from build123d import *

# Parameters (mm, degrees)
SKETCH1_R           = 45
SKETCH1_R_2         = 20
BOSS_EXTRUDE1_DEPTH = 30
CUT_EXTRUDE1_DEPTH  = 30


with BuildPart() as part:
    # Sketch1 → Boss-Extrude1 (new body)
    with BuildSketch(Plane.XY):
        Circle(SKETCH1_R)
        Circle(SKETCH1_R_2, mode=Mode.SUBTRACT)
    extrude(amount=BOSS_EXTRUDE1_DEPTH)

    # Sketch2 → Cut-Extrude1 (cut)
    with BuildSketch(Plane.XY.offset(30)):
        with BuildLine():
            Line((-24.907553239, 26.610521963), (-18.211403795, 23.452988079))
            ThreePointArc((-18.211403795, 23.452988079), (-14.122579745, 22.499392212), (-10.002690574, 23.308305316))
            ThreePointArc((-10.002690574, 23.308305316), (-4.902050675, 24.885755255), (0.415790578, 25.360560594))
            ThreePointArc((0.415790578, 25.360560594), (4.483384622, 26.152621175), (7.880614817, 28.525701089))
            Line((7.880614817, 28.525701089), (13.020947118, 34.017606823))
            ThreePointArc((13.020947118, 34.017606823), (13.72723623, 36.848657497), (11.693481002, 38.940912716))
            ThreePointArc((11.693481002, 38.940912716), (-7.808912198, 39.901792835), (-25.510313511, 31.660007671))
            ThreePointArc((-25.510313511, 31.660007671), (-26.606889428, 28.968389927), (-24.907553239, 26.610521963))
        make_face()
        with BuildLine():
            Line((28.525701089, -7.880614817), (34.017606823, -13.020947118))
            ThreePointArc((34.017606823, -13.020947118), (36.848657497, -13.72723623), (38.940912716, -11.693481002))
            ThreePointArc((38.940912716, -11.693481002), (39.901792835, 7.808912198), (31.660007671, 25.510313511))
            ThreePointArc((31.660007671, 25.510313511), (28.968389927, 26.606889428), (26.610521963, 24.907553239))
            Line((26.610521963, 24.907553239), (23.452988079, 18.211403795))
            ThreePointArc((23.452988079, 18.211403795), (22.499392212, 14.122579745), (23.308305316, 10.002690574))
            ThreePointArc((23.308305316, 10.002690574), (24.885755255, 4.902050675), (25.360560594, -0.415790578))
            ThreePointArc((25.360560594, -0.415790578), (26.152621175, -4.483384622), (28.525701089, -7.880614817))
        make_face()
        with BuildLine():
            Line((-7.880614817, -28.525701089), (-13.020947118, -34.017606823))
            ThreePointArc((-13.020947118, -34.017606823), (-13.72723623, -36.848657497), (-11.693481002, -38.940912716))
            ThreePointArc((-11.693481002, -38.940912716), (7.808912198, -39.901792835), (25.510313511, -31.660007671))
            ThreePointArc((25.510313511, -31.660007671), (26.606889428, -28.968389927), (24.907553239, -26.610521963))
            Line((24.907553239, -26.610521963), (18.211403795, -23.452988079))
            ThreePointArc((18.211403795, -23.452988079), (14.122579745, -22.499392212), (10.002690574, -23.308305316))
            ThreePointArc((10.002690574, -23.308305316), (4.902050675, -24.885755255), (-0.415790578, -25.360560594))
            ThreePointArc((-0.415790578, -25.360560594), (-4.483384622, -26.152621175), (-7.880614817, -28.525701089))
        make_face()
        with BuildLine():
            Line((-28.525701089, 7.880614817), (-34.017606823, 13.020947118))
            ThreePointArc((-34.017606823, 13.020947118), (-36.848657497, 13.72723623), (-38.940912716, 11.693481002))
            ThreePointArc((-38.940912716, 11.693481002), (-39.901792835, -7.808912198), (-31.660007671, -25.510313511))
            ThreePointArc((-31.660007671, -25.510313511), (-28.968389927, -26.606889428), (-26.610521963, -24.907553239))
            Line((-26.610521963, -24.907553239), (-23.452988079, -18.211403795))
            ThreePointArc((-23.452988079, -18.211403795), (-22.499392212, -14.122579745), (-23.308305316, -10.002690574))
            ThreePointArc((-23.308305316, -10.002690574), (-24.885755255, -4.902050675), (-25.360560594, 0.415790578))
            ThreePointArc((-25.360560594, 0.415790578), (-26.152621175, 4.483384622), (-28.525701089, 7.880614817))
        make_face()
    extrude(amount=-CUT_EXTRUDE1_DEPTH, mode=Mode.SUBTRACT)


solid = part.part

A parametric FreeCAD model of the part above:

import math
import FreeCAD as App
import Part
import Sketcher
from FreeCAD import Vector

doc = App.newDocument("Part")
body = doc.addObject("PartDesign::Body", "Body")

sketch1 = body.newObject("Sketcher::SketchObject", "Sketch")
sketch1.AttachmentSupport = (doc.getObject("XY_Plane"), [""])
sketch1.MapMode = "FlatFace"
sketch1.addGeometry([
    Part.Circle(Vector(0, 0, 0), Vector(0, 0, 1), 45),
    Part.Circle(Vector(0, 0, 0), Vector(0, 0, 1), 20),
], False)
sketch1.addConstraint([
    Sketcher.Constraint("Coincident", 0, 3, -1, 1),
    Sketcher.Constraint("Coincident", 1, 3, -1, 1),
    Sketcher.Constraint("Diameter", 0, 90.0),
    Sketcher.Constraint("Diameter", 1, 40.0),
])
pad1 = body.newObject("PartDesign::Pad", "Pad")
pad1.Profile = sketch1
pad1.Length = 30

sketch2 = body.newObject("Sketcher::SketchObject", "Sketch001")
sketch2.AttachmentSupport = (doc.getObject("XY_Plane"), [""])
sketch2.MapMode = "FlatFace"
sketch2.AttachmentOffset = App.Placement(Vector(0, 0, 30), App.Rotation())
sketch2.addGeometry([
    Part.LineSegment(Vector(-24.907553, 26.610522, 0), Vector(-18.211404, 23.452988, 0)),
    Part.ArcOfCircle(Part.Circle(Vector(-13.946352, 32.497839, 0), Vector(0, 0, 1), 10), math.radians(-115.245974), math.radians(-66.773552)),
    Part.ArcOfCircle(Part.Circle(Vector(0, 0, 0), Vector(0, 0, 1), 25.363969), math.radians(89.06071), math.radians(113.226448)),
    Part.ArcOfCircle(Part.Circle(Vector(0.57972, 35.359217, 0), Vector(0, 0, 1), 10), math.radians(-90.93929), math.radians(-43.106106)),
    Part.LineSegment(Vector(7.880615, 28.525701, 0), Vector(13.020947, 34.017607, 0)),
    Part.ArcOfCircle(Part.Circle(Vector(10.830679, 36.067662, 0), Vector(0, 0, 1), 3), math.radians(-43.106106), math.radians(73.285629)),
    Part.ArcOfCircle(Part.Circle(Vector(0, 0, 0), Vector(0, 0, 1), 40.658728), math.radians(73.285629), math.radians(128.860418)),
    Part.ArcOfCircle(Part.Circle(Vector(-23.628038, 29.323977, 0), Vector(0, 0, 1), 3), math.radians(128.860418), math.radians(244.754026)),
    Part.LineSegment(Vector(28.525701, -7.880615, 0), Vector(34.017607, -13.020947, 0)),
    Part.ArcOfCircle(Part.Circle(Vector(36.067662, -10.830679, 0), Vector(0, 0, 1), 3), math.radians(-133.106106), math.radians(-16.714371)),
    Part.ArcOfCircle(Part.Circle(Vector(0, 0, 0), Vector(0, 0, 1), 40.658728), math.radians(-16.714371), math.radians(38.860418)),
    Part.ArcOfCircle(Part.Circle(Vector(29.323977, 23.628038, 0), Vector(0, 0, 1), 3), math.radians(38.860418), math.radians(154.754026)),
    Part.LineSegment(Vector(26.610522, 24.907553, 0), Vector(23.452988, 18.211404, 0)),
    Part.ArcOfCircle(Part.Circle(Vector(32.497839, 13.946352, 0), Vector(0, 0, 1), 10), math.radians(154.754026), math.radians(203.226448)),
    Part.ArcOfCircle(Part.Circle(Vector(0, 0, 0), Vector(0, 0, 1), 25.363969), math.radians(-0.93929), math.radians(23.226448)),
    Part.ArcOfCircle(Part.Circle(Vector(35.359217, -0.57972, 0), Vector(0, 0, 1), 10), math.radians(179.06071), math.radians(226.893894)),
    Part.LineSegment(Vector(-7.880615, -28.525701, 0), Vector(-13.020947, -34.017607, 0)),
    Part.ArcOfCircle(Part.Circle(Vector(-10.830679, -36.067662, 0), Vector(0, 0, 1), 3), math.radians(136.893894), math.radians(253.285629)),
    Part.ArcOfCircle(Part.Circle(Vector(0, 0, 0), Vector(0, 0, 1), 40.658728), math.radians(-106.714371), math.radians(-51.139582)),
    Part.ArcOfCircle(Part.Circle(Vector(23.628038, -29.323977, 0), Vector(0, 0, 1), 3), math.radians(-51.139582), math.radians(64.754026)),
    Part.LineSegment(Vector(24.907553, -26.610522, 0), Vector(18.211404, -23.452988, 0)),
    Part.ArcOfCircle(Part.Circle(Vector(13.946352, -32.497839, 0), Vector(0, 0, 1), 10), math.radians(64.754026), math.radians(113.226448)),
    Part.ArcOfCircle(Part.Circle(Vector(0, 0, 0), Vector(0, 0, 1), 25.363969), math.radians(-90.93929), math.radians(-66.773552)),
    Part.ArcOfCircle(Part.Circle(Vector(-0.57972, -35.359217, 0), Vector(0, 0, 1), 10), math.radians(89.06071), math.radians(136.893894)),
    Part.LineSegment(Vector(-28.525701, 7.880615, 0), Vector(-34.017607, 13.020947, 0)),
    Part.ArcOfCircle(Part.Circle(Vector(-36.067662, 10.830679, 0), Vector(0, 0, 1), 3), math.radians(46.893894), math.radians(163.285629)),
    Part.ArcOfCircle(Part.Circle(Vector(0, 0, 0), Vector(0, 0, 1), 40.658728), math.radians(163.285629), math.radians(218.860418)),
    Part.ArcOfCircle(Part.Circle(Vector(-29.323977, -23.628038, 0), Vector(0, 0, 1), 3), math.radians(-141.139582), math.radians(-25.245974)),
    Part.LineSegment(Vector(-26.610522, -24.907553, 0), Vector(-23.452988, -18.211404, 0)),
    Part.ArcOfCircle(Part.Circle(Vector(-32.497839, -13.946352, 0), Vector(0, 0, 1), 10), math.radians(-25.245974), math.radians(23.226448)),
    Part.ArcOfCircle(Part.Circle(Vector(0, 0, 0), Vector(0, 0, 1), 25.363969), math.radians(179.06071), math.radians(203.226448)),
    Part.ArcOfCircle(Part.Circle(Vector(-35.359217, 0.57972, 0), Vector(0, 0, 1), 10), math.radians(-0.93929), math.radians(46.893894)),
], False)
sketch2.addConstraint([
    Sketcher.Constraint("Tangent", 0, 2, 1, 1),
    Sketcher.Constraint("Tangent", 1, 2, 2, 2),
    Sketcher.Constraint("Tangent", 2, 1, 3, 1),
    Sketcher.Constraint("Tangent", 3, 2, 4, 1),
    Sketcher.Constraint("Tangent", 4, 2, 5, 1),
    Sketcher.Constraint("Tangent", 5, 2, 6, 1),
    Sketcher.Constraint("Tangent", 6, 2, 7, 1),
    Sketcher.Constraint("Tangent", 7, 2, 0, 1),
    Sketcher.Constraint("Tangent", 8, 2, 9, 1),
    Sketcher.Constraint("Tangent", 9, 2, 10, 1),
    Sketcher.Constraint("Tangent", 10, 2, 11, 1),
    Sketcher.Constraint("Tangent", 11, 2, 12, 1),
    Sketcher.Constraint("Tangent", 12, 2, 13, 1),
    Sketcher.Constraint("Tangent", 13, 2, 14, 2),
    Sketcher.Constraint("Tangent", 14, 1, 15, 1),
    Sketcher.Constraint("Tangent", 15, 2, 8, 1),
    Sketcher.Constraint("Tangent", 16, 2, 17, 1),
    Sketcher.Constraint("Tangent", 17, 2, 18, 1),
    Sketcher.Constraint("Tangent", 18, 2, 19, 1),
    Sketcher.Constraint("Tangent", 19, 2, 20, 1),
    Sketcher.Constraint("Tangent", 20, 2, 21, 1),
    Sketcher.Constraint("Tangent", 21, 2, 22, 2),
    Sketcher.Constraint("Tangent", 22, 1, 23, 1),
    Sketcher.Constraint("Tangent", 23, 2, 16, 1),
    Sketcher.Constraint("Tangent", 24, 2, 25, 1),
    Sketcher.Constraint("Tangent", 25, 2, 26, 1),
    Sketcher.Constraint("Tangent", 26, 2, 27, 1),
    Sketcher.Constraint("Tangent", 27, 2, 28, 1),
    Sketcher.Constraint("Tangent", 28, 2, 29, 1),
    Sketcher.Constraint("Tangent", 29, 2, 30, 2),
    Sketcher.Constraint("Tangent", 30, 1, 31, 1),
    Sketcher.Constraint("Tangent", 31, 2, 24, 1),
    Sketcher.Constraint("Coincident", 2, 3, -1, 1),
    Sketcher.Constraint("Coincident", 6, 3, -1, 1),
    Sketcher.Constraint("Coincident", 10, 3, -1, 1),
    Sketcher.Constraint("Coincident", 14, 3, -1, 1),
    Sketcher.Constraint("Coincident", 18, 3, -1, 1),
    Sketcher.Constraint("Coincident", 22, 3, -1, 1),
    Sketcher.Constraint("Coincident", 26, 3, -1, 1),
    Sketcher.Constraint("Coincident", 30, 3, -1, 1),
    Sketcher.Constraint("Equal", 1, 3),
    Sketcher.Constraint("Equal", 5, 7),
    Sketcher.Constraint("Equal", 7, 9),
    Sketcher.Constraint("Equal", 6, 10),
    Sketcher.Constraint("Equal", 9, 11),
    Sketcher.Constraint("Equal", 3, 13),
    Sketcher.Constraint("Equal", 2, 14),
    Sketcher.Constraint("Equal", 13, 15),
    Sketcher.Constraint("Equal", 11, 17),
    Sketcher.Constraint("Equal", 10, 18),
    Sketcher.Constraint("Equal", 17, 19),
    Sketcher.Constraint("Equal", 15, 21),
    Sketcher.Constraint("Equal", 14, 22),
    Sketcher.Constraint("Equal", 21, 23),
    Sketcher.Constraint("Equal", 19, 25),
    Sketcher.Constraint("Equal", 18, 26),
    Sketcher.Constraint("Equal", 25, 27),
    Sketcher.Constraint("Equal", 23, 29),
    Sketcher.Constraint("Equal", 22, 30),
    Sketcher.Constraint("Equal", 29, 31),
    Sketcher.Constraint("Symmetric", 4, 2, 16, 2, -1, 1),
    Sketcher.Constraint("Symmetric", 7, 2, 19, 2, -1, 1),
    Sketcher.Constraint("Symmetric", 8, 2, 24, 2, -1, 1),
    Sketcher.Constraint("Symmetric", 11, 2, 27, 2, -1, 1),
    Sketcher.Constraint("Perpendicular", 4, 8),
    Sketcher.Constraint("Perpendicular", 0, 12),
    Sketcher.Constraint("Equal", 4, 8),
    Sketcher.Constraint("Equal", 0, 12),
    Sketcher.Constraint("Radius", 1, 10.0),
    Sketcher.Constraint("Radius", 5, 3.0),
    Sketcher.Constraint("Radius", 2, 25.363969),
    Sketcher.Constraint("Radius", 6, 40.658728),
    Sketcher.Constraint("DistanceY", -1, 1, 3, 2, 28.525701),
    Sketcher.Constraint("DistanceX", 5, 3, 11, 3, 18.493299),
    Sketcher.Constraint("DistanceY", 2, 1, 5, 3, 10.707101),
    Sketcher.Constraint("DistanceX", 7, 2, 1, 3, 10.961201),
])
pocket1 = body.newObject("PartDesign::Pocket", "Pocket")
pocket1.Profile = sketch2
pocket1.Length = 30

doc.recompute()
